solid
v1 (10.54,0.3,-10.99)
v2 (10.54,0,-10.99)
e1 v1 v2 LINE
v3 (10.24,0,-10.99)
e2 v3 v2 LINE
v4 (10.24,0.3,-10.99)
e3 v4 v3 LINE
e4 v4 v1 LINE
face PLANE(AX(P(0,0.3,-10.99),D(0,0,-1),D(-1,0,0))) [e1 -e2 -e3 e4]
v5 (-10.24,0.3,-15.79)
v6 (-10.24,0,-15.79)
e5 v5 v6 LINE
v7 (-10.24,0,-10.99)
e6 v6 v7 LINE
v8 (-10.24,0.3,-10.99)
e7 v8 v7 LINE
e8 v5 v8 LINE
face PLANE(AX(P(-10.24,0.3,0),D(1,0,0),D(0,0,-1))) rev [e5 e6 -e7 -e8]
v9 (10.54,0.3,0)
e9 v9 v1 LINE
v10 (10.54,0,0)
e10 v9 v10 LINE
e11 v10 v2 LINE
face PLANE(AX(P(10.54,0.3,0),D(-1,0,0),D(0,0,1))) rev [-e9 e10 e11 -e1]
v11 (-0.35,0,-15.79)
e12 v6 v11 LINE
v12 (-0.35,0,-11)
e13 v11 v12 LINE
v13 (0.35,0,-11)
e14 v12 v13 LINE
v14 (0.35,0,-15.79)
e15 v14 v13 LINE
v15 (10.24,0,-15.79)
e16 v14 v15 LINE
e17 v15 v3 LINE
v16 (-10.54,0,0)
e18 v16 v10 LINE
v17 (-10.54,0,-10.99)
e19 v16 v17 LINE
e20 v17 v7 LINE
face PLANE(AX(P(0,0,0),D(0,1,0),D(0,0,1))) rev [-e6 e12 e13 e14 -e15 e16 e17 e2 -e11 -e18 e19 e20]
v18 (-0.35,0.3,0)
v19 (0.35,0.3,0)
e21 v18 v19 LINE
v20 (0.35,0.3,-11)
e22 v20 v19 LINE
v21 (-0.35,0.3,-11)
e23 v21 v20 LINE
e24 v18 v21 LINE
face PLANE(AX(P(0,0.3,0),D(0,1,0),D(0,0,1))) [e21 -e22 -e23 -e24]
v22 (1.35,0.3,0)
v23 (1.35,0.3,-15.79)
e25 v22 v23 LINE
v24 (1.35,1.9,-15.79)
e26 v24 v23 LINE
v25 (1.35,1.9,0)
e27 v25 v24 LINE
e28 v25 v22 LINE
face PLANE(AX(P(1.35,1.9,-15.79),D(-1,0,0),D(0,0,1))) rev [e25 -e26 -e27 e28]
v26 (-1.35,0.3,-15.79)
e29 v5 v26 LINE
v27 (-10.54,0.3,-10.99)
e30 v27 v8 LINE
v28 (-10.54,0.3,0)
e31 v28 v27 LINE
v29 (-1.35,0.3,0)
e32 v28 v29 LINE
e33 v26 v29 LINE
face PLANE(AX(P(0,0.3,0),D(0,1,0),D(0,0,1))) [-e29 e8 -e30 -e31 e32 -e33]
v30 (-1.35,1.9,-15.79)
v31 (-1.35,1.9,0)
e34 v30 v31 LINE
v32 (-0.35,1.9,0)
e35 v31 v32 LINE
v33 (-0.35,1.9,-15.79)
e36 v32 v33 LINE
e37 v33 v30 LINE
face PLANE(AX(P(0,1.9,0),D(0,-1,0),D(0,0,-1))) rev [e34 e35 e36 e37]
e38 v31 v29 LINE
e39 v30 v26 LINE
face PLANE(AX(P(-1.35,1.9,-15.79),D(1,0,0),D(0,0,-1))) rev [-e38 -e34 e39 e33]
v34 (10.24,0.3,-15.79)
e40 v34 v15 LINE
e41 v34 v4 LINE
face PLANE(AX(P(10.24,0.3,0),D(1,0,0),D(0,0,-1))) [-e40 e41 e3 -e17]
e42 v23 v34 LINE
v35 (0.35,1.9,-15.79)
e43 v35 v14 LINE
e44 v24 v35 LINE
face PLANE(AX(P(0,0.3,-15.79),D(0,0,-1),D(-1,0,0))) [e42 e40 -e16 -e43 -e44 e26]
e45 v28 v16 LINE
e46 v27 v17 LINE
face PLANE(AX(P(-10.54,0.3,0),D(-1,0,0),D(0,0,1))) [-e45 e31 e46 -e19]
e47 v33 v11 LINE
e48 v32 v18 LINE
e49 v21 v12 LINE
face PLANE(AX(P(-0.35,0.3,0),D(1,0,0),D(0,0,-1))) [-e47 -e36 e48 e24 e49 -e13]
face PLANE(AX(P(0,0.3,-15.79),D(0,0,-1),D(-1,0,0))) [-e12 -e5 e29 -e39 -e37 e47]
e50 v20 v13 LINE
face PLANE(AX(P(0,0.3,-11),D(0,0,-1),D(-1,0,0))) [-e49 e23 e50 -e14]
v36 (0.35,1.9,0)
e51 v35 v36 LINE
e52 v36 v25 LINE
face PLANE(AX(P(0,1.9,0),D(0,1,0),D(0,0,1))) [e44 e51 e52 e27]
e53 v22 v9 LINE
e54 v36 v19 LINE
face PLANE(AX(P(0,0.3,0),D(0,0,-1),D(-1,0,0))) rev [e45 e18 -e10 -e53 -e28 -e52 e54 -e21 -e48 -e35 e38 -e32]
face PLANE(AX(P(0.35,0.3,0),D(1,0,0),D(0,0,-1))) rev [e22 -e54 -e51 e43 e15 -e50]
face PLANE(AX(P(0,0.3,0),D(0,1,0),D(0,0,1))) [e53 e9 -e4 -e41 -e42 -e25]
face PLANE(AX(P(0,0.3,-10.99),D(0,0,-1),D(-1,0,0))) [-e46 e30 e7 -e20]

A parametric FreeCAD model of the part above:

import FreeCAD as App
import Part
import Sketcher
from FreeCAD import Vector
Q = App.Units.Quantity


def add_polygon(sketch, points):
    """Adds a closed chain of lines whose ends are joined by coincident constraints."""
    first, n = sketch.GeometryCount, len(points)
    for a, b in zip(points, points[1:] + points[:1]):
        sketch.addGeometry(Part.LineSegment(App.Vector(*a, 0), App.Vector(*b, 0)), False)
    for i in range(n):
        sketch.addConstraint(Sketcher.Constraint("Coincident", first + i, 2, first + (i + 1) % n, 1))

doc = App.newDocument("Part")
body = doc.addObject("PartDesign::Body", "Body")

sketch1 = body.newObject("Sketcher::SketchObject", "Sketch")
sketch1.AttachmentSupport = (doc.getObject("XZ_Plane"), [""])
sketch1.MapMode = "FlatFace"
add_polygon(sketch1, [(-10.24, -15.79), (-10.24, -10.99), (-10.54, -10.99), (-10.54, 0), (10.54, 0), (10.54, -10.99), (10.24, -10.99), (10.24, -15.79), (0.35, -15.79), (0.35, -11), (-0.35, -11), (-0.35, -15.79)])
sketch1.addConstraint([
    Sketcher.Constraint("Vertical", 0),
    Sketcher.Constraint("Horizontal", 1),
    Sketcher.Constraint("Vertical", 2),
    Sketcher.Constraint("Horizontal", 3),
    Sketcher.Constraint("Vertical", 4),
    Sketcher.Constraint("Horizontal", 5),
    Sketcher.Constraint("Vertical", 6),
    Sketcher.Constraint("Horizontal", 7),
    Sketcher.Constraint("Vertical", 8),
    Sketcher.Constraint("Horizontal", 9),
    Sketcher.Constraint("Vertical", 10),
    Sketcher.Constraint("Horizontal", 11),
    Sketcher.Constraint("Symmetric", 2, 2, 3, 2, -1, 1),
    Sketcher.Constraint("Symmetric", 0, 2, 5, 2, -2),
    Sketcher.Constraint("Symmetric", 7, 2, 10, 2, -2),
    Sketcher.Constraint("DistanceX", 1, 2, 1, 1, Q("0.3 mm")),
    Sketcher.Constraint("DistanceX", 9, 2, 9, 1, Q("0.7 mm")),
    Sketcher.Constraint("DistanceY", 0, 1, 0, 2, Q("4.8 mm")),
    Sketcher.Constraint("DistanceY", 8, 2, -1, 1, Q("11 mm")),
    Sketcher.Constraint("DistanceX", 3, 1, 3, 2, Q("21.08 mm")),
    Sketcher.Constraint("DistanceY", 2, 1, 2, 2, Q("10.99 mm")),
])
pad1 = body.newObject("PartDesign::Pad", "Pad")
pad1.Profile = sketch1
pad1.Length = 0.3
pad1.Reversed = True

sketch2 = body.newObject("Sketcher::SketchObject", "Sketch001")
sketch2.AttachmentSupport = (doc.getObject("XZ_Plane"), [""])
sketch2.MapMode = "FlatFace"
sketch2.AttachmentOffset = App.Placement(Vector(0, 0, -0.3), App.Rotation())
add_polygon(sketch2, [(-1.4, -15.8), (-1.4, 0), (-0.3, 0), (-0.3, -15.8)])
add_polygon(sketch2, [(0.3, -15.8), (0.3, 0), (1.4, 0), (1.4, -15.8)])
sketch2.addConstraint([
    Sketcher.Constraint("Vertical", 0),
    Sketcher.Constraint("Horizontal", 1),
    Sketcher.Constraint("Vertical", 2),
    Sketcher.Constraint("Horizontal", 3),
    Sketcher.Constraint("Vertical", 4),
    Sketcher.Constraint("Horizontal", 5),
    Sketcher.Constraint("Vertical", 6),
    Sketcher.Constraint("Horizontal", 7),
    Sketcher.Constraint("Symmetric", 1, 2, 4, 2, -1, 1),
    Sketcher.Constraint("Symmetric", 0, 2, 5, 2, -2),
    Sketcher.Constraint("Horizontal", 3, 2, 6, 2),
    Sketcher.Constraint("DistanceX", 1, 1, 1, 2, Q("1 mm")),
    Sketcher.Constraint("DistanceY", 0, 1, 0, 2, Q("15.79 mm")),
    Sketcher.Constraint("DistanceX", 1, 2, 4, 2, Q("0.7 mm")),
])
pad2 = body.newObject("PartDesign::Pad", "Pad001")
pad2.Profile = sketch2
pad2.Length = 1.6
pad2.Reversed = True

doc.recompute()
